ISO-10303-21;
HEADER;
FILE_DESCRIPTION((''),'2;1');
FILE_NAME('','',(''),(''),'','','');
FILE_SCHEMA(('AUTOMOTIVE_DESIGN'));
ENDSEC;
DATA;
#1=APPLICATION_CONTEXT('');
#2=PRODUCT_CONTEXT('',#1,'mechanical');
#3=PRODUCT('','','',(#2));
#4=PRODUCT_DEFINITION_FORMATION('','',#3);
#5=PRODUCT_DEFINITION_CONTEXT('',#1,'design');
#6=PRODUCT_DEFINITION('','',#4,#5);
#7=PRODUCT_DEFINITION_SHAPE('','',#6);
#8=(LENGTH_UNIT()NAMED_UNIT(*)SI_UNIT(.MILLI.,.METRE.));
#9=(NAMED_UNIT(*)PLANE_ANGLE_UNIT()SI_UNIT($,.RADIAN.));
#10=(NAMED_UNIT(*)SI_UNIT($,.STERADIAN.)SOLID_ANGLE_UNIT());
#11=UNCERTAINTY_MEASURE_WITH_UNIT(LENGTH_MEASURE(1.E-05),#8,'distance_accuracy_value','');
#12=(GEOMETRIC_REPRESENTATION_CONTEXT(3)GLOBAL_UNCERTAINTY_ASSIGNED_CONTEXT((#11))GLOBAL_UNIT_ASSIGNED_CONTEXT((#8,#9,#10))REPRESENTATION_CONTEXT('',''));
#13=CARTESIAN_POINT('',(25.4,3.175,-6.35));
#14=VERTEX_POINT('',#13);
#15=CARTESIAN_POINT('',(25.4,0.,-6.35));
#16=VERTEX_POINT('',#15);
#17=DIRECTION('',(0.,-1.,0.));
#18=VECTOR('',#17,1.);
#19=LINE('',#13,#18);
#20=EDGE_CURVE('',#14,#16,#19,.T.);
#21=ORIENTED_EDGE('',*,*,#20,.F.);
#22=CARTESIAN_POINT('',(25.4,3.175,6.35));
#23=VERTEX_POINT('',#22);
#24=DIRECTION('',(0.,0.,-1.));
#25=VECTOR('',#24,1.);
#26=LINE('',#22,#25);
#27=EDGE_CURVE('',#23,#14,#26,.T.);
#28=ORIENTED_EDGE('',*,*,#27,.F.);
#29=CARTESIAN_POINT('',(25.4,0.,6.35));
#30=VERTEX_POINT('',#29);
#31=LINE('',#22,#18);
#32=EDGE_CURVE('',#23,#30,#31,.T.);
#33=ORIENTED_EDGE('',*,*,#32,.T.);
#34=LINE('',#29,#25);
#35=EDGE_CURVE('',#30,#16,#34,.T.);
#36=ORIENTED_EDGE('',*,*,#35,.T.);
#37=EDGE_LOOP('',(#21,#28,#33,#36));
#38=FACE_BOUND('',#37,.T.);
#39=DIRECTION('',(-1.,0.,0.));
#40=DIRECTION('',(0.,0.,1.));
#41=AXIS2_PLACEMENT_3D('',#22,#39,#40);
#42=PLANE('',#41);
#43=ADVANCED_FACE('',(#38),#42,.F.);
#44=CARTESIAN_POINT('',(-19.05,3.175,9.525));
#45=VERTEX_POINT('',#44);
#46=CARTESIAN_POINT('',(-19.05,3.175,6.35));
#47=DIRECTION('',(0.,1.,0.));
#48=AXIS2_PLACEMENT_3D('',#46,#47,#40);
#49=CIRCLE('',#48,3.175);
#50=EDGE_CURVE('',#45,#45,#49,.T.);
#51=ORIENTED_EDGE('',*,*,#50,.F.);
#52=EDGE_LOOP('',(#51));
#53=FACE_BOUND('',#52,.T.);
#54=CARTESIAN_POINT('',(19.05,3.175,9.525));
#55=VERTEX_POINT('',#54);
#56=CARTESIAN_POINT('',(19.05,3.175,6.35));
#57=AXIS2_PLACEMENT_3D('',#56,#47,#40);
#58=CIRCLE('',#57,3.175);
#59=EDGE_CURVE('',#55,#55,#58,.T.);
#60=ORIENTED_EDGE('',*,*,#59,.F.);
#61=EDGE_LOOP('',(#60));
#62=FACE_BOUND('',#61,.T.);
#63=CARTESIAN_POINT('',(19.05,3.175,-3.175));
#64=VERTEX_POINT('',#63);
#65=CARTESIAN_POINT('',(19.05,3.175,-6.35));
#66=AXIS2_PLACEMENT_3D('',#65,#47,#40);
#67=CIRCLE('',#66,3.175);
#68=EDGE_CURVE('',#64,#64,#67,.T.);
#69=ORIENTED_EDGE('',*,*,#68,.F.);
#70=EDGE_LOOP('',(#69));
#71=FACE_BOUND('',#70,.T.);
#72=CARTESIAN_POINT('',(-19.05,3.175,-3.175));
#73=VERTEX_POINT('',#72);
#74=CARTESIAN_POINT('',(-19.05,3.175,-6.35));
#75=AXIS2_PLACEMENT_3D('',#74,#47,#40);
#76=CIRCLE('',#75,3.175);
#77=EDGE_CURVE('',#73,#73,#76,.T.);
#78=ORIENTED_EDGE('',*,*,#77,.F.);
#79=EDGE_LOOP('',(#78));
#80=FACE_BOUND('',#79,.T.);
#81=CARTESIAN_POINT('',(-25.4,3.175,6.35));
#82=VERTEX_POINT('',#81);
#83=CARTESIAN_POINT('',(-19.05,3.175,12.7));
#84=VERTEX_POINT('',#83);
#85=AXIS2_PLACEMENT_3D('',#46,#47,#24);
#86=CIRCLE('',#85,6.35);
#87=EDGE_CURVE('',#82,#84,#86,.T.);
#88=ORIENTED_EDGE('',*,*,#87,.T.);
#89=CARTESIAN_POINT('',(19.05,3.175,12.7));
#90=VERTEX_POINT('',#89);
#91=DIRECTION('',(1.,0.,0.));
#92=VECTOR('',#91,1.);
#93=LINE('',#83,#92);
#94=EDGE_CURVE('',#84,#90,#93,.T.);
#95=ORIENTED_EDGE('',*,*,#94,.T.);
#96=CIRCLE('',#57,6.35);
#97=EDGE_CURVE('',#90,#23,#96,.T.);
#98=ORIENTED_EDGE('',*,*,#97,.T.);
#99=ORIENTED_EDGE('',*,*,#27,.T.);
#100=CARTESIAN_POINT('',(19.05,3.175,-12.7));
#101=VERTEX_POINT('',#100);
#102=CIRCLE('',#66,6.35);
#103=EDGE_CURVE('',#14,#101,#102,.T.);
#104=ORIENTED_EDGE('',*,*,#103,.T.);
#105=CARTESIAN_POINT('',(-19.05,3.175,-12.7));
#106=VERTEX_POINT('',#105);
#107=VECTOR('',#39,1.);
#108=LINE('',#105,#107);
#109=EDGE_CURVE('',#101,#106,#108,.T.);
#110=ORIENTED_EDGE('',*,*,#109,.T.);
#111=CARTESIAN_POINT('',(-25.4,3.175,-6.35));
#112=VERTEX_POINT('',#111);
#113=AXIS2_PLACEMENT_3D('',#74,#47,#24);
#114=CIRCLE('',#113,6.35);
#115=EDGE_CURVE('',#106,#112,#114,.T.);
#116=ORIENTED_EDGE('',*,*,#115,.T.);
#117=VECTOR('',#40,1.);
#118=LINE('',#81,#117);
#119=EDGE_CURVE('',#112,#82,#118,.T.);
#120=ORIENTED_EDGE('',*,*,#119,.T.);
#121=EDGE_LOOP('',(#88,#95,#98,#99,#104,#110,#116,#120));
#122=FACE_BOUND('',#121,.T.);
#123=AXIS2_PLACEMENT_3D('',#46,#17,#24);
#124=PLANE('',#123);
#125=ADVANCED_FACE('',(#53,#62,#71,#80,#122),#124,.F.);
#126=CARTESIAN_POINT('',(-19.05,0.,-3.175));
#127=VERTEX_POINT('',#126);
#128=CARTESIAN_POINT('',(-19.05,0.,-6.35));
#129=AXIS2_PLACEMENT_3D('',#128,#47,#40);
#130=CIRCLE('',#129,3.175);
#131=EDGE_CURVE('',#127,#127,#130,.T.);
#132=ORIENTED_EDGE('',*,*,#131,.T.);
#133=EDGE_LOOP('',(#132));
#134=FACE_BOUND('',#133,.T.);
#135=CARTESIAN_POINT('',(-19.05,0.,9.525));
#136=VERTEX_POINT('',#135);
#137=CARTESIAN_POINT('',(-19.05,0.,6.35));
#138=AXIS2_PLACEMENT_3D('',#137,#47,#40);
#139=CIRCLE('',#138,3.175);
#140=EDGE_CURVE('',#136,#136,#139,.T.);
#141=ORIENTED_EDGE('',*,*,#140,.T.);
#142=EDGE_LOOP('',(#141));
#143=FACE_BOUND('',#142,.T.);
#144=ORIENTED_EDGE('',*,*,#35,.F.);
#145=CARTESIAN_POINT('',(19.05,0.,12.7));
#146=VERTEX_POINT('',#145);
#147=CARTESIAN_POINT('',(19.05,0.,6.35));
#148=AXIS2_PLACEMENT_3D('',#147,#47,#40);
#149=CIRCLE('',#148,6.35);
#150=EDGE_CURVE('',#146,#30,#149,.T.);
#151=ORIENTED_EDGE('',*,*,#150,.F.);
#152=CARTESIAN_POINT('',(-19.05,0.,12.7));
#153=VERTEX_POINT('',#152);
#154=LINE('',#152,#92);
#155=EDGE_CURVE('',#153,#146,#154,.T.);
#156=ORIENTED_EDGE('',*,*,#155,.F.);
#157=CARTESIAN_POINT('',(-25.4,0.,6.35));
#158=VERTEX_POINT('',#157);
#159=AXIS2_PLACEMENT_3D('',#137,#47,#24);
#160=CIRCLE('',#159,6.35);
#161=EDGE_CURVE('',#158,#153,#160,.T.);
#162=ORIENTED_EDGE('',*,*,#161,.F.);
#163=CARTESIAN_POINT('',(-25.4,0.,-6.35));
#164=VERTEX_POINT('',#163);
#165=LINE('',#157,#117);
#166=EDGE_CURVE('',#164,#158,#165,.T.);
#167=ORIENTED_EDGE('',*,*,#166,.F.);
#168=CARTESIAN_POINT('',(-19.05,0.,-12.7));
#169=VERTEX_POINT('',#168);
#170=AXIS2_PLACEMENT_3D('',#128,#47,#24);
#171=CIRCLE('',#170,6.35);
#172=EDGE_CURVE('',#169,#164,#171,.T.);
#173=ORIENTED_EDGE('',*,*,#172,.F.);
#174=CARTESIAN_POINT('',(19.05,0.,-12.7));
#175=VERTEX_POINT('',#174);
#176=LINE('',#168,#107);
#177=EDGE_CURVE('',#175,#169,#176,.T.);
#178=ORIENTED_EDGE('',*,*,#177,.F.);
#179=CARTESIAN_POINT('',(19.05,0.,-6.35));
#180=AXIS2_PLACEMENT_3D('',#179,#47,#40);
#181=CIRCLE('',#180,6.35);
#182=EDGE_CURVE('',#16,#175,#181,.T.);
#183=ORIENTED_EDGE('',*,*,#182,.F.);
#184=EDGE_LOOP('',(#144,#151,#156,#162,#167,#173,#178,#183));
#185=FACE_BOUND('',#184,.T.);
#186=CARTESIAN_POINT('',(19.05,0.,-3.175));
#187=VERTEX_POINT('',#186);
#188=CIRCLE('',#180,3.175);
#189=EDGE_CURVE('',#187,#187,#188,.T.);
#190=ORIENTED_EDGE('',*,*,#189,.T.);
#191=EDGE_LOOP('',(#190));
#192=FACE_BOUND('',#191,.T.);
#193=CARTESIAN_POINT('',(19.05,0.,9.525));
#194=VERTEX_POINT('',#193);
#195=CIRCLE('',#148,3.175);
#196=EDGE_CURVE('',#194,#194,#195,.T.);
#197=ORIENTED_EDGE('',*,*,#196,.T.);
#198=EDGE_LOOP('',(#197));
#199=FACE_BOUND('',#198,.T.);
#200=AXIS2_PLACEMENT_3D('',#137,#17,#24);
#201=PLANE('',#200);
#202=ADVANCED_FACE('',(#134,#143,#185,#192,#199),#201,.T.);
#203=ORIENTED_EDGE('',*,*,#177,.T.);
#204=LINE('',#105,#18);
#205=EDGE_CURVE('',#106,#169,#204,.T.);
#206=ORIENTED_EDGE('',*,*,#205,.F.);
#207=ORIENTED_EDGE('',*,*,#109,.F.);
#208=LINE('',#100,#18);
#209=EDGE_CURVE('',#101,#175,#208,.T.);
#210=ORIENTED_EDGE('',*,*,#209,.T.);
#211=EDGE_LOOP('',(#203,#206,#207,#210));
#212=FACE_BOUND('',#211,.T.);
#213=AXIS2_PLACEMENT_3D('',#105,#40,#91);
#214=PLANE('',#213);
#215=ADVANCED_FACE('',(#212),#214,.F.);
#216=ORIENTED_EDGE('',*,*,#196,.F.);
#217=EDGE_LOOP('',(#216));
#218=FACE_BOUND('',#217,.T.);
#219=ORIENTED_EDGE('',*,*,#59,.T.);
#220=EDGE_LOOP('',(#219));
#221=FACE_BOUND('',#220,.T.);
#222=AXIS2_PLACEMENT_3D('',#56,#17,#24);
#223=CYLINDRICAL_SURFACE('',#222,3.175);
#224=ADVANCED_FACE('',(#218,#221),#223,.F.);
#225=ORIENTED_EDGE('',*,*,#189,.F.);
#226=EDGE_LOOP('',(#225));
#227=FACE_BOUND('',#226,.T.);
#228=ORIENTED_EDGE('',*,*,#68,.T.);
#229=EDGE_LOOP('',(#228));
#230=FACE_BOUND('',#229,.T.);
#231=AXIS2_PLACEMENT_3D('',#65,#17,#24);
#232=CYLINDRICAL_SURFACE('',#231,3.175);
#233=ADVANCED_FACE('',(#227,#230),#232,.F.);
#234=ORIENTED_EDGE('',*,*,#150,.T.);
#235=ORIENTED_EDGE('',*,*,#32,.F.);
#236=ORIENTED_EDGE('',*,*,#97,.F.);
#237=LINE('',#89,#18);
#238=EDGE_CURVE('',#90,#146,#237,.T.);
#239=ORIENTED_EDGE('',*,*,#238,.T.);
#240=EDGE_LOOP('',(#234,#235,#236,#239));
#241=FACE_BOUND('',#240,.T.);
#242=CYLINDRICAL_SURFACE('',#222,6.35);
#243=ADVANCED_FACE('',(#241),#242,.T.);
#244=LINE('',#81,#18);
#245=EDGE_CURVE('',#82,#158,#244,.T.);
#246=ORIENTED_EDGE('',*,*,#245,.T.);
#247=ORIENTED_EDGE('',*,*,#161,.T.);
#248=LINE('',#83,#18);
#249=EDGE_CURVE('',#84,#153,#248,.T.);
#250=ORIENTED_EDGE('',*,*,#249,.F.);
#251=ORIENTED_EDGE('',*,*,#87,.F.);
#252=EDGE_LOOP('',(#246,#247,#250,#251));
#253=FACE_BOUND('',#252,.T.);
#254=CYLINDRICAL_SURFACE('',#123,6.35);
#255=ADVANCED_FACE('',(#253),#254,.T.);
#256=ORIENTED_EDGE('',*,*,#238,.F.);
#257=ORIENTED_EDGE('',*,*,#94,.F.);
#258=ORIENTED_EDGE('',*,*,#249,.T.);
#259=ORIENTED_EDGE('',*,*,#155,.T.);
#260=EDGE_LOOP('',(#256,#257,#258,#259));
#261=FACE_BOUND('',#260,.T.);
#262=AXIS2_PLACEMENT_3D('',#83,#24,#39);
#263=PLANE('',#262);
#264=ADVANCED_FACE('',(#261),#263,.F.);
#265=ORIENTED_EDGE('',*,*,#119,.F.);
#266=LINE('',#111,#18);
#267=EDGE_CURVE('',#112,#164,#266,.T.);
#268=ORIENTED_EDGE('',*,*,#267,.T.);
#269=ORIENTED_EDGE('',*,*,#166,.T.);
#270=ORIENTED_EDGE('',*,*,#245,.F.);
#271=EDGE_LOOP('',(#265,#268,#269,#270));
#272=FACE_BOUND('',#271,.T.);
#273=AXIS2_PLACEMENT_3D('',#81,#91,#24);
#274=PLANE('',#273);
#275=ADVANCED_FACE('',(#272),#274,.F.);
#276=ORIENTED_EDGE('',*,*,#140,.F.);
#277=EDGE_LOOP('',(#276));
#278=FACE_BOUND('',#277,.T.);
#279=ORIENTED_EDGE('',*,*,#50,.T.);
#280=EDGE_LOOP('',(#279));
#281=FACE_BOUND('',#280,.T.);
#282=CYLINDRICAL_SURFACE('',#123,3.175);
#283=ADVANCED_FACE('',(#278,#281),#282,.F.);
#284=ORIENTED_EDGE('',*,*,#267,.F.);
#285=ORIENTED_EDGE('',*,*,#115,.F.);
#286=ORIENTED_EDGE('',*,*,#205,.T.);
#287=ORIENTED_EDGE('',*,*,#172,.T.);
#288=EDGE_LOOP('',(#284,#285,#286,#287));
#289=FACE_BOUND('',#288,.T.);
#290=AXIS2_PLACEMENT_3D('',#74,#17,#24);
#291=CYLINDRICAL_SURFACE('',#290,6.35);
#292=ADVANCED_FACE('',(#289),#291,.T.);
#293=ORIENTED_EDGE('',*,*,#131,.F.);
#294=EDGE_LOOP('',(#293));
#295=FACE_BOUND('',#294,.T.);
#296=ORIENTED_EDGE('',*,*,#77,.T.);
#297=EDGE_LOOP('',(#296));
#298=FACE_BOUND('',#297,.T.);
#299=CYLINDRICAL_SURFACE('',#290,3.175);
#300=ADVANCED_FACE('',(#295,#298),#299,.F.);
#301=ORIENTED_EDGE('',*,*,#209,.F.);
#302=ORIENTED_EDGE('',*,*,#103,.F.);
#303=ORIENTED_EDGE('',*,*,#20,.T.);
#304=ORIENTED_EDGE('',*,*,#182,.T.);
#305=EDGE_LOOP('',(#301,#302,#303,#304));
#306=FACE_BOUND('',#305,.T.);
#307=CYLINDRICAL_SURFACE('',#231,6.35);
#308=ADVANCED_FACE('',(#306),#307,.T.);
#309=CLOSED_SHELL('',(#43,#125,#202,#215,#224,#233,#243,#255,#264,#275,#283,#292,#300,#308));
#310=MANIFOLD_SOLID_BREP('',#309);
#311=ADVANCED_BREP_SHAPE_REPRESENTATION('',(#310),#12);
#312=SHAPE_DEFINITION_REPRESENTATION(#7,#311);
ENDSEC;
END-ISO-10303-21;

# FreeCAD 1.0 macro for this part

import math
import FreeCAD as App
import Part
import Sketcher
Q = App.Units.Quantity

doc = App.newDocument("Part")
body = doc.addObject("PartDesign::Body", "Body")

sketch1 = body.newObject("Sketcher::SketchObject", "Sketch")
sketch1.AttachmentSupport = (doc.getObject("XZ_Plane"), [""])
sketch1.MapMode = "FlatFace"
sketch1.addGeometry([
    Part.LineSegment(App.Vector(-19.1, 12.7, 0), App.Vector(19.1, 12.7, 0)),
    Part.ArcOfCircle(Part.Circle(App.Vector(19.1, 6.4, 0), App.Vector(0, 0, 1), 6.3), math.radians(0), math.radians(90)),
    Part.LineSegment(App.Vector(25.4, 6.3, 0), App.Vector(25.4, -6.3, 0)),
    Part.ArcOfCircle(Part.Circle(App.Vector(19.1, -6.4, 0), App.Vector(0, 0, 1), 6.3), math.radians(-90), math.radians(0)),
    Part.LineSegment(App.Vector(19.1, -12.7, 0), App.Vector(-19.1, -12.7, 0)),
    Part.ArcOfCircle(Part.Circle(App.Vector(-19.1, -6.4, 0), App.Vector(0, 0, 1), 6.3), math.radians(180), math.radians(270)),
    Part.LineSegment(App.Vector(-25.4, -6.3, 0), App.Vector(-25.4, 6.3, 0)),
    Part.ArcOfCircle(Part.Circle(App.Vector(-19.1, 6.4, 0), App.Vector(0, 0, 1), 6.3), math.radians(90), math.radians(180)),
    Part.Circle(App.Vector(-19.1, 6.3, 0), App.Vector(0, 0, 1), 3.2),
    Part.Circle(App.Vector(19.1, 6.3, 0), App.Vector(0, 0, 1), 3.2),
    Part.Circle(App.Vector(-19.1, -6.3, 0), App.Vector(0, 0, 1), 3.2),
    Part.Circle(App.Vector(19.1, -6.3, 0), App.Vector(0, 0, 1), 3.2),
], False)
sketch1.addConstraint([
    Sketcher.Constraint("Tangent", 0, 2, 1, 2),
    Sketcher.Constraint("Tangent", 1, 1, 2, 1),
    Sketcher.Constraint("Tangent", 2, 2, 3, 2),
    Sketcher.Constraint("Tangent", 3, 1, 4, 1),
    Sketcher.Constraint("Tangent", 4, 2, 5, 2),
    Sketcher.Constraint("Tangent", 5, 1, 6, 1),
    Sketcher.Constraint("Tangent", 6, 2, 7, 2),
    Sketcher.Constraint("Tangent", 7, 1, 0, 1),
    Sketcher.Constraint("Horizontal", 0),
    Sketcher.Constraint("Vertical", 2),
    Sketcher.Constraint("Horizontal", 4),
    Sketcher.Constraint("Vertical", 6),
    Sketcher.Constraint("Coincident", 8, 3, 7, 3),
    Sketcher.Constraint("Coincident", 9, 3, 1, 3),
    Sketcher.Constraint("Coincident", 10, 3, 5, 3),
    Sketcher.Constraint("Coincident", 11, 3, 3, 3),
    Sketcher.Constraint("Equal", 1, 3),
    Sketcher.Constraint("Equal", 3, 5),
    Sketcher.Constraint("Equal", 5, 7),
    Sketcher.Constraint("Equal", 8, 9),
    Sketcher.Constraint("Equal", 9, 10),
    Sketcher.Constraint("Equal", 10, 11),
    Sketcher.Constraint("Symmetric", 1, 3, 5, 3, -1, 1),
    Sketcher.Constraint("Diameter", 8, Q("0.25 in")),
    Sketcher.Constraint("Radius", 1, Q("0.25 in")),
    Sketcher.Constraint("DistanceX", 0, 1, 0, 2, Q("1.5 in")),
    Sketcher.Constraint("DistanceY", 2, 2, 2, 1, Q("0.5 in")),
])
pad1 = body.newObject("PartDesign::Pad", "Pad")
pad1.Profile = sketch1
pad1.Length = Q("0.125 in")
pad1.Reversed = True

doc.recompute()
